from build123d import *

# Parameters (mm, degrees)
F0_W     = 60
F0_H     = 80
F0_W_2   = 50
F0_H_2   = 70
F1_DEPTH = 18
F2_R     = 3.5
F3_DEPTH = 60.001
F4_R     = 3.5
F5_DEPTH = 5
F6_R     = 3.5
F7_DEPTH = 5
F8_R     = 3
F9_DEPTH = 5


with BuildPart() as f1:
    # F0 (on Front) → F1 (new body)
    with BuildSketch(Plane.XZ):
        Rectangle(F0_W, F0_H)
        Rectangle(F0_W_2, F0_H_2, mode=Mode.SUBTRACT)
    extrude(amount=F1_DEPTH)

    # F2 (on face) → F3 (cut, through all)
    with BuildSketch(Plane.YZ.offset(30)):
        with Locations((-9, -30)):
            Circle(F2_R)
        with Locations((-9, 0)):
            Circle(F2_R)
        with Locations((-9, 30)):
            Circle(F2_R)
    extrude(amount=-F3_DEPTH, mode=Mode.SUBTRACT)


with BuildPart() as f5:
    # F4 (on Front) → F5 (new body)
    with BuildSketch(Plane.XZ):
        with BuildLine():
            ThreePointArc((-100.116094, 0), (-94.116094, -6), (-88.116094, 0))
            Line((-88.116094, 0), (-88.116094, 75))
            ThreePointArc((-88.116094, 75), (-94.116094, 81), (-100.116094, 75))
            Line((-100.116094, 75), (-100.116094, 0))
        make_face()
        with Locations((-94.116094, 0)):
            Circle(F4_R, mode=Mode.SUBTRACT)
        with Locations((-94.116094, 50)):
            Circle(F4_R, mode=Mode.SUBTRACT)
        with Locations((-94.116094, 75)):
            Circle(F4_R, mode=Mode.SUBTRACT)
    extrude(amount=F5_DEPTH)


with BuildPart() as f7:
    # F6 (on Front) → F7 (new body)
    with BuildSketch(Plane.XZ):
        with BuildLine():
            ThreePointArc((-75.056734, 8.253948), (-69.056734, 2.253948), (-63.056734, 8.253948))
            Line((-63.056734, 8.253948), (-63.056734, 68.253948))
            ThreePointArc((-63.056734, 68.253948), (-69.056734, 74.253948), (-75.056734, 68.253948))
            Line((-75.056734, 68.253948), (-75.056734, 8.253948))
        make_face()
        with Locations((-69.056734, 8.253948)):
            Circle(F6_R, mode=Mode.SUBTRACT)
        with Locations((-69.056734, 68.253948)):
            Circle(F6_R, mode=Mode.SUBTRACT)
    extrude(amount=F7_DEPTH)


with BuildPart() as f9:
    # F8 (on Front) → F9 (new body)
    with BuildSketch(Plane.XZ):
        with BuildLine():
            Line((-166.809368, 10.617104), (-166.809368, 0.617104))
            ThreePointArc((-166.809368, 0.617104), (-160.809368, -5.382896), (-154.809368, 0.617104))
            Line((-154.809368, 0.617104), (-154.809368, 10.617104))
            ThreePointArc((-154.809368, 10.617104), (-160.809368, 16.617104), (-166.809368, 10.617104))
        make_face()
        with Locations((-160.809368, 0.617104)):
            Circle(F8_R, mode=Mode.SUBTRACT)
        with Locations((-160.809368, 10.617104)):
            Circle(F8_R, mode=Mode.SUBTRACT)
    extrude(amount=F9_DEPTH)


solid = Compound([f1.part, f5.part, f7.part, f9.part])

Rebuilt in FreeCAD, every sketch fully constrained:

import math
import FreeCAD as App
import Part
import Sketcher

V = App.Vector
Q = App.Units.Quantity

doc = App.newDocument("Part")
params = doc.addObject("Spreadsheet::Sheet", "Params")
for row, (alias, value) in enumerate([
    ("sketch1_width", "60 mm"),
    ("sketch1_width2", "50 mm"),
    ("sketch1_height", "80 mm"),
    ("sketch1_height2", "70 mm"),
    ("pad1_length", "18 mm"),
    ("sketch2_diameter", "7 mm"),
    ("sketch3_diameter", "7 mm"),
    ("sketch3_radius", "6 mm"),
    ("sketch3_height", "75 mm"),
    ("pad2_length", "5 mm"),
    ("sketch4_diameter", "7 mm"),
    ("sketch4_radius", "6 mm"),
    ("sketch4_height", "60 mm"),
    ("pad3_length", "5 mm"),
    ("sketch5_diameter", "6 mm"),
    ("sketch5_radius", "6 mm"),
    ("sketch5_height", "10 mm"),
    ("pad4_length", "5 mm"),
], start=1):
    params.set(f"A{row}", alias)
    params.set(f"B{row}", "=" + value)
    params.setAlias(f"B{row}", alias)

body = doc.addObject("PartDesign::Body", "Body")

# Sketch on XZ plane
sketch1 = body.newObject("Sketcher::SketchObject", "Sketch")
sketch1.AttachmentSupport = (doc.getObject("XZ_Plane"), [""])
sketch1.MapMode = "FlatFace"
sketch1.addGeometry([
    Part.LineSegment(V(-30, 40, 0), V(-30, -40, 0)),  # 0
    Part.LineSegment(V(-30, -40, 0), V(30, -40, 0)),  # 1
    Part.LineSegment(V(30, -40, 0), V(30, 40, 0)),  # 2
    Part.LineSegment(V(30, 40, 0), V(-30, 40, 0)),  # 3
    Part.LineSegment(V(25, -35, 0), V(-25, -35, 0)),  # 4
    Part.LineSegment(V(-25, -35, 0), V(-25, 35, 0)),  # 5
    Part.LineSegment(V(-25, 35, 0), V(25, 35, 0)),  # 6
    Part.LineSegment(V(25, 35, 0), V(25, -35, 0)),  # 7
], False)
sketch1.addConstraint([
    Sketcher.Constraint("Coincident", 0, 2, 1, 1),
    Sketcher.Constraint("Coincident", 1, 2, 2, 1),
    Sketcher.Constraint("Coincident", 2, 2, 3, 1),
    Sketcher.Constraint("Coincident", 3, 2, 0, 1),
    Sketcher.Constraint("Coincident", 4, 2, 5, 1),
    Sketcher.Constraint("Coincident", 5, 2, 6, 1),
    Sketcher.Constraint("Coincident", 6, 2, 7, 1),
    Sketcher.Constraint("Coincident", 7, 2, 4, 1),
    Sketcher.Constraint("Vertical", 0),
    Sketcher.Constraint("Horizontal", 1),
    Sketcher.Constraint("Vertical", 2),
    Sketcher.Constraint("Horizontal", 3),
    Sketcher.Constraint("Horizontal", 4),
    Sketcher.Constraint("Vertical", 5),
    Sketcher.Constraint("Horizontal", 6),
    Sketcher.Constraint("Vertical", 7),
    Sketcher.Constraint("Symmetric", 0, 2, 2, 2, -1, 1),
    Sketcher.Constraint("Symmetric", 4, 2, 6, 2, -1, 1),
    Sketcher.Constraint("DistanceX", 1, 1, 1, 2, Q("60 mm")),
    Sketcher.Constraint("DistanceX", 4, 2, 4, 1, Q("50 mm")),
    Sketcher.Constraint("DistanceY", 0, 2, 0, 1, Q("80 mm")),
    Sketcher.Constraint("DistanceY", 5, 1, 5, 2, Q("70 mm")),
])
sketch1.setExpression("Constraints[18]", "Params.sketch1_width")
sketch1.setExpression("Constraints[19]", "Params.sketch1_width2")
sketch1.setExpression("Constraints[20]", "Params.sketch1_height")
sketch1.setExpression("Constraints[21]", "Params.sketch1_height2")
pad1 = body.newObject("PartDesign::Pad", "Pad")
pad1.Profile = sketch1
pad1.setExpression("Length", "Params.pad1_length")

# Sketch on YZ plane
sketch2 = body.newObject("Sketcher::SketchObject", "Sketch001")
sketch2.AttachmentSupport = (doc.getObject("YZ_Plane"), [""])
sketch2.MapMode = "FlatFace"
sketch2.AttachmentOffset = App.Placement(V(0, 0, 30), App.Rotation())
sketch2.addGeometry([
    Part.Circle(V(-9, -30, 0), V(0, 0, 1), 3.5),
    Part.Circle(V(-9, 0, 0), V(0, 0, 1), 3.5),
    Part.Circle(V(-9, 30, 0), V(0, 0, 1), 3.5),
], False)
sketch2.addConstraint([
    Sketcher.Constraint("Equal", 0, 1),
    Sketcher.Constraint("Equal", 1, 2),
    Sketcher.Constraint("Symmetric", 0, 3, 2, 3, -1),
    Sketcher.Constraint("PointOnObject", 1, 3, -1),
    Sketcher.Constraint("Vertical", 0, 3, 1, 3),
    Sketcher.Constraint("Diameter", 0, Q("7 mm")),
    Sketcher.Constraint("DistanceX", 0, 3, -1, 1, Q("9 mm")),
    Sketcher.Constraint("DistanceY", 0, 3, -1, 1, Q("30 mm")),
])
sketch2.setExpression("Constraints[5]", "Params.sketch2_diameter")
pocket1 = body.newObject("PartDesign::Pocket", "Pocket")
pocket1.Profile = sketch2
pocket1.Type = "ThroughAll"
body2 = doc.addObject("PartDesign::Body", "Body001")

# Sketch on XZ plane
sketch3 = body2.newObject("Sketcher::SketchObject", "Sketch002")
sketch3.AttachmentSupport = (doc.getObject("XZ_Plane001"), [""])
sketch3.MapMode = "FlatFace"
sketch3.addGeometry([
    Part.ArcOfCircle(Part.Circle(V(-94.116094, 0, 0), V(0, 0, 1), 6), math.radians(180), math.radians(360)),  # 0
    Part.LineSegment(V(-88.116094, 0, 0), V(-88.116094, 75, 0)),  # 1
    Part.ArcOfCircle(Part.Circle(V(-94.116094, 75, 0), V(0, 0, 1), 6), math.radians(0), math.radians(180)),  # 2
    Part.LineSegment(V(-100.116094, 75, 0), V(-100.116094, 0, 0)),  # 3
    Part.Circle(V(-94.116094, 0, 0), V(0, 0, 1), 3.5),  # 4
    Part.Circle(V(-94.116094, 50, 0), V(0, 0, 1), 3.5),  # 5
    Part.Circle(V(-94.116094, 75, 0), V(0, 0, 1), 3.5),  # 6
], False)
sketch3.addConstraint([
    Sketcher.Constraint("Tangent", 0, 2, 1, 1),
    Sketcher.Constraint("Tangent", 1, 2, 2, 1),
    Sketcher.Constraint("Tangent", 2, 2, 3, 1),
    Sketcher.Constraint("Tangent", 3, 2, 0, 1),
    Sketcher.Constraint("Vertical", 1),
    Sketcher.Constraint("Vertical", 3),
    Sketcher.Constraint("Coincident", 4, 3, 0, 3),
    Sketcher.Constraint("Coincident", 6, 3, 2, 3),
    Sketcher.Constraint("Equal", 4, 5),
    Sketcher.Constraint("Equal", 5, 6),
    Sketcher.Constraint("PointOnObject", 0, 3, -1),
    Sketcher.Constraint("Vertical", 4, 3, 5, 3),
    Sketcher.Constraint("Diameter", 4, Q("7 mm")),
    Sketcher.Constraint("Radius", 0, Q("6 mm")),
    Sketcher.Constraint("DistanceY", 1, 1, 1, 2, Q("75 mm")),
    Sketcher.Constraint("DistanceY", -1, 1, 5, 3, Q("50 mm")),
    Sketcher.Constraint("DistanceX", 0, 3, -1, 1, Q("94.116094 mm")),
])
sketch3.setExpression("Constraints[12]", "Params.sketch3_diameter")
sketch3.setExpression("Constraints[13]", "Params.sketch3_radius")
sketch3.setExpression("Constraints[14]", "Params.sketch3_height")
pad2 = body2.newObject("PartDesign::Pad", "Pad001")
pad2.Profile = sketch3
pad2.setExpression("Length", "Params.pad2_length")
body3 = doc.addObject("PartDesign::Body", "Body002")

# Sketch on XZ plane
sketch4 = body3.newObject("Sketcher::SketchObject", "Sketch003")
sketch4.AttachmentSupport = (doc.getObject("XZ_Plane002"), [""])
sketch4.MapMode = "FlatFace"
sketch4.addGeometry([
    Part.ArcOfCircle(Part.Circle(V(-69.056734, 8.253948, 0), V(0, 0, 1), 6), math.radians(180), math.radians(360)),  # 0
    Part.LineSegment(V(-63.056734, 8.253948, 0), V(-63.056734, 68.253948, 0)),  # 1
    Part.ArcOfCircle(Part.Circle(V(-69.056734, 68.253948, 0), V(0, 0, 1), 6), math.radians(0), math.radians(180)),  # 2
    Part.LineSegment(V(-75.056734, 68.253948, 0), V(-75.056734, 8.253948, 0)),  # 3
    Part.Circle(V(-69.056734, 8.253948, 0), V(0, 0, 1), 3.5),  # 4
    Part.Circle(V(-69.056734, 68.253948, 0), V(0, 0, 1), 3.5),  # 5
], False)
sketch4.addConstraint([
    Sketcher.Constraint("Tangent", 0, 2, 1, 1),
    Sketcher.Constraint("Tangent", 1, 2, 2, 1),
    Sketcher.Constraint("Tangent", 2, 2, 3, 1),
    Sketcher.Constraint("Tangent", 3, 2, 0, 1),
    Sketcher.Constraint("Vertical", 1),
    Sketcher.Constraint("Vertical", 3),
    Sketcher.Constraint("Coincident", 4, 3, 0, 3),
    Sketcher.Constraint("Coincident", 5, 3, 2, 3),
    Sketcher.Constraint("Equal", 4, 5),
    Sketcher.Constraint("Diameter", 4, Q("7 mm")),
    Sketcher.Constraint("Radius", 0, Q("6 mm")),
    Sketcher.Constraint("DistanceY", 1, 1, 1, 2, Q("60 mm")),
    Sketcher.Constraint("DistanceX", 0, 3, -1, 1, Q("69.056734 mm")),
    Sketcher.Constraint("DistanceY", -1, 1, 0, 3, Q("8.253948 mm")),
])
sketch4.setExpression("Constraints[9]", "Params.sketch4_diameter")
sketch4.setExpression("Constraints[10]", "Params.sketch4_radius")
sketch4.setExpression("Constraints[11]", "Params.sketch4_height")
pad3 = body3.newObject("PartDesign::Pad", "Pad002")
pad3.Profile = sketch4
pad3.setExpression("Length", "Params.pad3_length")
body4 = doc.addObject("PartDesign::Body", "Body003")

# Sketch on XZ plane
sketch5 = body4.newObject("Sketcher::SketchObject", "Sketch004")
sketch5.AttachmentSupport = (doc.getObject("XZ_Plane003"), [""])
sketch5.MapMode = "FlatFace"
sketch5.addGeometry([
    Part.LineSegment(V(-166.809368, 10.617104, 0), V(-166.809368, 0.617104, 0)),  # 0
    Part.ArcOfCircle(Part.Circle(V(-160.809368, 0.617104, 0), V(0, 0, 1), 6), math.radians(180), math.radians(360)),  # 1
    Part.LineSegment(V(-154.809368, 0.617104, 0), V(-154.809368, 10.617104, 0)),  # 2
    Part.ArcOfCircle(Part.Circle(V(-160.809368, 10.617104, 0), V(0, 0, 1), 6), math.radians(0), math.radians(180)),  # 3
    Part.Circle(V(-160.809368, 0.617104, 0), V(0, 0, 1), 3),  # 4
    Part.Circle(V(-160.809368, 10.617104, 0), V(0, 0, 1), 3),  # 5
], False)
sketch5.addConstraint([
    Sketcher.Constraint("Tangent", 0, 2, 1, 1),
    Sketcher.Constraint("Tangent", 1, 2, 2, 1),
    Sketcher.Constraint("Tangent", 2, 2, 3, 1),
    Sketcher.Constraint("Tangent", 3, 2, 0, 1),
    Sketcher.Constraint("Vertical", 0),
    Sketcher.Constraint("Vertical", 2),
    Sketcher.Constraint("Coincident", 4, 3, 1, 3),
    Sketcher.Constraint("Coincident", 5, 3, 3, 3),
    Sketcher.Constraint("Equal", 4, 5),
    Sketcher.Constraint("Diameter", 4, Q("6 mm")),
    Sketcher.Constraint("Radius", 1, Q("6 mm")),
    Sketcher.Constraint("DistanceY", 0, 2, 0, 1, Q("10 mm")),
    Sketcher.Constraint("DistanceX", 1, 3, -1, 1, Q("160.809368 mm")),
    Sketcher.Constraint("DistanceY", -1, 1, 1, 3, Q("0.617104 mm")),
])
sketch5.setExpression("Constraints[9]", "Params.sketch5_diameter")
sketch5.setExpression("Constraints[10]", "Params.sketch5_radius")
sketch5.setExpression("Constraints[11]", "Params.sketch5_height")
pad4 = body4.newObject("PartDesign::Pad", "Pad003")
pad4.Profile = sketch5
pad4.setExpression("Length", "Params.pad4_length")

doc.recompute()
